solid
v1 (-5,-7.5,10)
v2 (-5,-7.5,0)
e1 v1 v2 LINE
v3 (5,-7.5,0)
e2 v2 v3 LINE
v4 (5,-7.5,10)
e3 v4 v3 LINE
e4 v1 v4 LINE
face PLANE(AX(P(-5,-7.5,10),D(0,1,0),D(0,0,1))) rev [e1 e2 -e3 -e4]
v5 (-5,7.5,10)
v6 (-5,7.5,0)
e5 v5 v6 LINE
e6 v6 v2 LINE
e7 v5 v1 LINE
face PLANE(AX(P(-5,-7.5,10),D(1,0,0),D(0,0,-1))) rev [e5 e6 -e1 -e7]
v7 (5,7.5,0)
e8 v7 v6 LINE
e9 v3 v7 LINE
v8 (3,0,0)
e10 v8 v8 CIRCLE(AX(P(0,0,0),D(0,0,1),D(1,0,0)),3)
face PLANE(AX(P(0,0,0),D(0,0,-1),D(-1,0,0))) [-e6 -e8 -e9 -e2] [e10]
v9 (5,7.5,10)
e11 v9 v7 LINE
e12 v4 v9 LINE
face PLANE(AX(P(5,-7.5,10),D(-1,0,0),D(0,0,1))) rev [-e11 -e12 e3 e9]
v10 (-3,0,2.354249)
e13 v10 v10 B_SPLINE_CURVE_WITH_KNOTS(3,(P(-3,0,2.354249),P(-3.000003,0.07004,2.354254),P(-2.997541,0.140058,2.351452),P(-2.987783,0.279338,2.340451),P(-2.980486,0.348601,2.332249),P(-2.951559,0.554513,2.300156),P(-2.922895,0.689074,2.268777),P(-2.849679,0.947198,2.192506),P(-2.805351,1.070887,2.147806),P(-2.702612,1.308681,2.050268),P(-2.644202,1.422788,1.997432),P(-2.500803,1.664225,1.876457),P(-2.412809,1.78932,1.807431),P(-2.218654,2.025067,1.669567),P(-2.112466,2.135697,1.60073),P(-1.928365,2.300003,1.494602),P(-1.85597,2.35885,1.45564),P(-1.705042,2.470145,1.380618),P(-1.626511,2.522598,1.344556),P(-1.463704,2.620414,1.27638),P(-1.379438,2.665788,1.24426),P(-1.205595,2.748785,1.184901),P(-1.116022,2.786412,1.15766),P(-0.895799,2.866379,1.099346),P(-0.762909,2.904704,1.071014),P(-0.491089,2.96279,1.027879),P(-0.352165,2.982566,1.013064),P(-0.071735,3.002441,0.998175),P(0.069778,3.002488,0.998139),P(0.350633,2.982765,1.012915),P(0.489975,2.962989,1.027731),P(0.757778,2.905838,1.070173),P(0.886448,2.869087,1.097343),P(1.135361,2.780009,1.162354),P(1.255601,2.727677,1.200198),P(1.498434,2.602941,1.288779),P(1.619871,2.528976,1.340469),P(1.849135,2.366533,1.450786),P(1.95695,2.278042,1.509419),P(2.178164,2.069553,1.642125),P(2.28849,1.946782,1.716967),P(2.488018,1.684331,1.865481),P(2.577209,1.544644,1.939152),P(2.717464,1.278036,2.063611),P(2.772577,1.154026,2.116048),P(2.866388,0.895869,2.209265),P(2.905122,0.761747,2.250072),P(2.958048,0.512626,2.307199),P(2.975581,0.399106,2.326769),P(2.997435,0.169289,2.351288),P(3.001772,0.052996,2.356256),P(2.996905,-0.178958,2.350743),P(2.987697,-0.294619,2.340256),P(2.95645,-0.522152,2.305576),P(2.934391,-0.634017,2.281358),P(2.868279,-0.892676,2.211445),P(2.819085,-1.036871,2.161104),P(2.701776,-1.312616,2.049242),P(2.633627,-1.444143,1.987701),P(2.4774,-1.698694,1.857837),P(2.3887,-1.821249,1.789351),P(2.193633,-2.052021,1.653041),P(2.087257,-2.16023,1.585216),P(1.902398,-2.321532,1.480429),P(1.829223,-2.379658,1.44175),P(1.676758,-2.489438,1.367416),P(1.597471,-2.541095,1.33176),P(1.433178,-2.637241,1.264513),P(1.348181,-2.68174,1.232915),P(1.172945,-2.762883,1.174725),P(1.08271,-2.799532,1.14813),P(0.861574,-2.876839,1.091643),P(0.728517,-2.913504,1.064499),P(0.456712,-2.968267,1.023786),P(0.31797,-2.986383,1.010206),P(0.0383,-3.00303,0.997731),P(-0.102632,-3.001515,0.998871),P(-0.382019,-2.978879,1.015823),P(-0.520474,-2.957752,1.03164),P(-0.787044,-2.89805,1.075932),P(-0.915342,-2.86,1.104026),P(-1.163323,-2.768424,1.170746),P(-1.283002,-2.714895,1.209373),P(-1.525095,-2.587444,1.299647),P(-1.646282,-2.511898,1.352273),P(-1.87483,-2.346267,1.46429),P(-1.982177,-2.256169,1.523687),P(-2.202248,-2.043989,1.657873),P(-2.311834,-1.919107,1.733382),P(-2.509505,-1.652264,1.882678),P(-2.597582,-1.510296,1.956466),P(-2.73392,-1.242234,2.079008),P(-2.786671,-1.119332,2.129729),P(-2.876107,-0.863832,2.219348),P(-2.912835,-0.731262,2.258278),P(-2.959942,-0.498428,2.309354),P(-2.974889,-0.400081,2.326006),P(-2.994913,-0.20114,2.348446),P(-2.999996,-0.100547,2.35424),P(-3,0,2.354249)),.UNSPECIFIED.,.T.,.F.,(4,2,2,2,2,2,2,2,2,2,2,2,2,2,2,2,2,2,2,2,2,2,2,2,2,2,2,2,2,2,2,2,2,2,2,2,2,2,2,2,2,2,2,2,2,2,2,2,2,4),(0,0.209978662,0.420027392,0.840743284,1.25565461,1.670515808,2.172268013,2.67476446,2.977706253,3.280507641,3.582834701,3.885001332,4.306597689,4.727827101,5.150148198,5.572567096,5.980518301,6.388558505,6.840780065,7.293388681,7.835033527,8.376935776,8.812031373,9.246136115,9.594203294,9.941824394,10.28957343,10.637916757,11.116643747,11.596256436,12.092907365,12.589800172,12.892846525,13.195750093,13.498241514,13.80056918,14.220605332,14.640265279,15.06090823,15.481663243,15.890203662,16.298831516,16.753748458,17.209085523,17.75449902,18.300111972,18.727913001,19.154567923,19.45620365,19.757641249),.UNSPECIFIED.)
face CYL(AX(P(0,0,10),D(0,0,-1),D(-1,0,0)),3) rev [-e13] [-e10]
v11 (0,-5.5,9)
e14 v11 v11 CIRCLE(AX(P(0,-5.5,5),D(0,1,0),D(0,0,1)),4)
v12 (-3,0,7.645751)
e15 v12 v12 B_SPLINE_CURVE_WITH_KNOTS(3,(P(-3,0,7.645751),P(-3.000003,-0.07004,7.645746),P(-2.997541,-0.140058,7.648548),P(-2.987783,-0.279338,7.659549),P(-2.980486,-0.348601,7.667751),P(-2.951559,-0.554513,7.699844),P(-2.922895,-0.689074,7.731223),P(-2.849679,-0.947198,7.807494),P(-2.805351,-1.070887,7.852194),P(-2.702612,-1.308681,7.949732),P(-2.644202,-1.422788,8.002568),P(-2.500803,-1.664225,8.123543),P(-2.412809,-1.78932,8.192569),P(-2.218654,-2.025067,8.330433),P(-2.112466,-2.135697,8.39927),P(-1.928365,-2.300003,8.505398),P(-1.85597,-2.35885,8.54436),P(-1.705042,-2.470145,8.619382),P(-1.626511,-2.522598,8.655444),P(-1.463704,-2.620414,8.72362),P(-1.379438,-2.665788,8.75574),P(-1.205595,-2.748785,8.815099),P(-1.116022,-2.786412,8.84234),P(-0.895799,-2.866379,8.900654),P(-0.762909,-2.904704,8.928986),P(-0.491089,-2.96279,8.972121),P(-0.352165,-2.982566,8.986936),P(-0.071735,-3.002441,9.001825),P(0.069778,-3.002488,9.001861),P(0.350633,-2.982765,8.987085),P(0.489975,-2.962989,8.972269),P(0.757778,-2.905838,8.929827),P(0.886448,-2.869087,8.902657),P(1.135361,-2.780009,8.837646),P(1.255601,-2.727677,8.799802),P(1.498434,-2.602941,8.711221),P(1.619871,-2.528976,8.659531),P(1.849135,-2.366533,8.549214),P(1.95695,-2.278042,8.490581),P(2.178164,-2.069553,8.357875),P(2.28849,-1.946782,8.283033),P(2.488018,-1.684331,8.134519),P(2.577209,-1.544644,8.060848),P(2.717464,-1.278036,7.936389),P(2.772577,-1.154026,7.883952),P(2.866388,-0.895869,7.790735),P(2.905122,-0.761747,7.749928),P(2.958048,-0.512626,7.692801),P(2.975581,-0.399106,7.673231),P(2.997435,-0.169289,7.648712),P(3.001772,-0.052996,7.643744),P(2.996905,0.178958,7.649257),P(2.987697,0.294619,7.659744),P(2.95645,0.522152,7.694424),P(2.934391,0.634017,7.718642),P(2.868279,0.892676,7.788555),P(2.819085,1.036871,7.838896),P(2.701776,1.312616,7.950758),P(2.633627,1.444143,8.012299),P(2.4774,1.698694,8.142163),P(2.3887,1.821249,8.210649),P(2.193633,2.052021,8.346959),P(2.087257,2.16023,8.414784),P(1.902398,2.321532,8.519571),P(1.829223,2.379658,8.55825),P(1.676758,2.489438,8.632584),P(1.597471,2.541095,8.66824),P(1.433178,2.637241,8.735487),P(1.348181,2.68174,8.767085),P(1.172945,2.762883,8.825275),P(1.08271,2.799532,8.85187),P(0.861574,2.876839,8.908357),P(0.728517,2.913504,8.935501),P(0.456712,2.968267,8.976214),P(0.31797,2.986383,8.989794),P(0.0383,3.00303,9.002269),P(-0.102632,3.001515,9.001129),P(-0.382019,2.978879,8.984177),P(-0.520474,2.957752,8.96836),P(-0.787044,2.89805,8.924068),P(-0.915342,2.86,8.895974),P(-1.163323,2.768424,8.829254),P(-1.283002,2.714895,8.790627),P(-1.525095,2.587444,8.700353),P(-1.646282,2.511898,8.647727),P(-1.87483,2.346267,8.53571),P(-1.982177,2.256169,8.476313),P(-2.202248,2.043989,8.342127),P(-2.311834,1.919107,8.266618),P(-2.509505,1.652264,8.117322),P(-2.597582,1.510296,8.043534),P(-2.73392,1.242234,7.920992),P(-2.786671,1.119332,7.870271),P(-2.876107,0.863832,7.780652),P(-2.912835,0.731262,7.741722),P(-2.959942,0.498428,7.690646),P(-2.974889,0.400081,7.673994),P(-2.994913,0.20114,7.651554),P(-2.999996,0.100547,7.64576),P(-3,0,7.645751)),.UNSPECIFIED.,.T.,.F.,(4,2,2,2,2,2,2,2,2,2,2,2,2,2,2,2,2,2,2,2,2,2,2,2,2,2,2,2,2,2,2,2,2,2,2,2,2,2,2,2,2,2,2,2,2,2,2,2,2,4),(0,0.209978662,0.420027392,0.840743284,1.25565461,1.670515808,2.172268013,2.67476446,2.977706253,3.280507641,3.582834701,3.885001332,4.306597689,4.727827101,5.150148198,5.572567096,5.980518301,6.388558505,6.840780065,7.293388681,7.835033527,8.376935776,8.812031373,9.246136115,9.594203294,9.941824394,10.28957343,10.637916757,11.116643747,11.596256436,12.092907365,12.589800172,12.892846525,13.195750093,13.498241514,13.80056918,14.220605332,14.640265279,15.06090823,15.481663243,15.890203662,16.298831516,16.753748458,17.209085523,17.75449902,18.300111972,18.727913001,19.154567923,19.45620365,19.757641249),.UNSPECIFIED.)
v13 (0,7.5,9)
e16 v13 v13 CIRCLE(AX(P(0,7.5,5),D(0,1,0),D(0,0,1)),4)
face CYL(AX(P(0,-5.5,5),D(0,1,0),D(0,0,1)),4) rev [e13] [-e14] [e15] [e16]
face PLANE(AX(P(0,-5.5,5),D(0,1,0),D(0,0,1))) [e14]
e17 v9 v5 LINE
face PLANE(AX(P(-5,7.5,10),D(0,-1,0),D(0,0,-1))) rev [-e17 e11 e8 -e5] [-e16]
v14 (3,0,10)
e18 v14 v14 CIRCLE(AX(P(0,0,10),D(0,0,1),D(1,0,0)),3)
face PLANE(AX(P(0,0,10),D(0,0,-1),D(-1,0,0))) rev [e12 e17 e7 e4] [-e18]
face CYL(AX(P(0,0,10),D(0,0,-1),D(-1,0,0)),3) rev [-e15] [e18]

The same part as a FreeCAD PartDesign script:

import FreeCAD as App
import Part
import Sketcher
from FreeCAD import Vector
Q = App.Units.Quantity


def add_polygon(sketch, points):
    """Adds a closed chain of lines whose ends are joined by coincident constraints."""
    first, n = sketch.GeometryCount, len(points)
    for a, b in zip(points, points[1:] + points[:1]):
        sketch.addGeometry(Part.LineSegment(App.Vector(*a, 0), App.Vector(*b, 0)), False)
    for i in range(n):
        sketch.addConstraint(Sketcher.Constraint("Coincident", first + i, 2, first + (i + 1) % n, 1))

doc = App.newDocument("Part")
params = doc.addObject("Spreadsheet::Sheet", "Params")
for row, (alias, value) in enumerate([
    ("sketch1_diameter", "6 mm"),
    ("sketch1_width", "10 mm"),
    ("sketch1_height", "15 mm"),
    ("pad1_length", "10 mm"),
    ("sketch2_diameter", "8 mm"),
    ("pocket1_length", "13 mm"),
], start=1):
    params.set(f"A{row}", alias)
    params.set(f"B{row}", "=" + value)
    params.setAlias(f"B{row}", alias)

body = doc.addObject("PartDesign::Body", "Body")

# Sketch on XY plane
sketch1 = body.newObject("Sketcher::SketchObject", "Sketch")
sketch1.AttachmentSupport = (doc.getObject("XY_Plane"), [""])
sketch1.MapMode = "FlatFace"
add_polygon(sketch1, [(-5, 7.5), (-5, -7.5), (5, -7.5), (5, 7.5)])  # lines 0-3
sketch1.addGeometry(Part.Circle(Vector(0, 0, 0), Vector(0, 0, 1), 3), False)  # 4
sketch1.addConstraint(Sketcher.Constraint("Vertical", 0))
sketch1.addConstraint(Sketcher.Constraint("Horizontal", 1))
sketch1.addConstraint(Sketcher.Constraint("Vertical", 2))
sketch1.addConstraint(Sketcher.Constraint("Horizontal", 3))
sketch1.addConstraint(Sketcher.Constraint("Coincident", 4, 3, -1, 1))
sketch1.addConstraint(Sketcher.Constraint("Symmetric", 0, 2, 2, 2, -1, 1))
sketch1.addConstraint(Sketcher.Constraint("Diameter", 4, Q("6 mm")))
sketch1.addConstraint(Sketcher.Constraint("DistanceX", 1, 1, 1, 2, Q("10 mm")))
sketch1.addConstraint(Sketcher.Constraint("DistanceY", 0, 2, 0, 1, Q("15 mm")))
sketch1.setExpression("Constraints[10]", "Params.sketch1_diameter")
sketch1.setExpression("Constraints[11]", "Params.sketch1_width")
sketch1.setExpression("Constraints[12]", "Params.sketch1_height")
pad1 = body.newObject("PartDesign::Pad", "Pad")
pad1.Profile = sketch1
pad1.setExpression("Length", "Params.pad1_length")

# Sketch on XZ plane
sketch2 = body.newObject("Sketcher::SketchObject", "Sketch001")
sketch2.AttachmentSupport = (doc.getObject("XZ_Plane"), [""])
sketch2.MapMode = "FlatFace"
sketch2.AttachmentOffset = App.Placement(Vector(0, 0, -7.5), App.Rotation())
sketch2.addGeometry(Part.Circle(Vector(0, 5, 0), Vector(0, 0, 1), 4), False)
sketch2.addConstraint(Sketcher.Constraint("PointOnObject", 0, 3, -2))
sketch2.addConstraint(Sketcher.Constraint("Diameter", 0, Q("8 mm")))
sketch2.addConstraint(Sketcher.Constraint("DistanceY", -1, 1, 0, 3, Q("5 mm")))
sketch2.setExpression("Constraints[1]", "Params.sketch2_diameter")
pocket1 = body.newObject("PartDesign::Pocket", "Pocket")
pocket1.Profile = sketch2
pocket1.setExpression("Length", "Params.pocket1_length")
pocket1.Reversed = True

doc.recompute()
